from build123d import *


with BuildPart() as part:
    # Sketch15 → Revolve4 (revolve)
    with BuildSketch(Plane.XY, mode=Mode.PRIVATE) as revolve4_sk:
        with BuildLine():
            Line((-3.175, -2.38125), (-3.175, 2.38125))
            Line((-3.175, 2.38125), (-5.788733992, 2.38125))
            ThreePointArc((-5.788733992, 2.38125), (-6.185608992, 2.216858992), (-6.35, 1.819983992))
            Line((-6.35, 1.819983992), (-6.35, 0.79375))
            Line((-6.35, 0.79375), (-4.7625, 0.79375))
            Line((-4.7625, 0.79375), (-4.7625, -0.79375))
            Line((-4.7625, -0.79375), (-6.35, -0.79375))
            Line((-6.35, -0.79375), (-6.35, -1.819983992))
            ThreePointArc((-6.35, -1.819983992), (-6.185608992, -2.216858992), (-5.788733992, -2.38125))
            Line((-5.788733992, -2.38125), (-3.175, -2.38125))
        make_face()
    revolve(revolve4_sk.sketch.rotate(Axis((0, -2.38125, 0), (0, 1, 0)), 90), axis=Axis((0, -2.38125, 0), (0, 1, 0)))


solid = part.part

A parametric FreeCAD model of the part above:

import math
import FreeCAD as App
import Part
import Sketcher
from FreeCAD import Vector
Q = App.Units.Quantity

doc = App.newDocument("Part")
body = doc.addObject("PartDesign::Body", "Body")

# Sketch on XY plane
sketch1 = doc.addObject("Sketcher::SketchObject", "Sketch")
body.addObject(sketch1)
sketch1.AttachmentSupport = (doc.XY_Plane, [""])
sketch1.MapMode = "FlatFace"
sketch1.addGeometry(Part.LineSegment(Vector(-3.175, -2.38125, 0), Vector(-3.175, 2.38125, 0)), False)
sketch1.addGeometry(Part.LineSegment(Vector(-3.175, 2.38125, 0), Vector(-5.788734, 2.38125, 0)), False)
sketch1.addGeometry(Part.ArcOfCircle(Part.Circle(Vector(-5.788734, 1.819984, 0), Vector(0, 0, 1), 0.561266), math.radians(90), math.radians(180)), False)
sketch1.addGeometry(Part.LineSegment(Vector(-6.35, 1.819984, 0), Vector(-6.35, 0.79375, 0)), False)
sketch1.addGeometry(Part.LineSegment(Vector(-6.35, 0.79375, 0), Vector(-4.7625, 0.79375, 0)), False)
sketch1.addGeometry(Part.LineSegment(Vector(-4.7625, 0.79375, 0), Vector(-4.7625, -0.79375, 0)), False)
sketch1.addGeometry(Part.LineSegment(Vector(-4.7625, -0.79375, 0), Vector(-6.35, -0.79375, 0)), False)
sketch1.addGeometry(Part.LineSegment(Vector(-6.35, -0.79375, 0), Vector(-6.35, -1.819984, 0)), False)
sketch1.addGeometry(Part.ArcOfCircle(Part.Circle(Vector(-5.788734, -1.819984, 0), Vector(0, 0, 1), 0.561266), math.radians(-180), math.radians(-90)), False)
sketch1.addGeometry(Part.LineSegment(Vector(-5.788734, -2.38125, 0), Vector(-3.175, -2.38125, 0)), False)
sketch1.addConstraint(Sketcher.Constraint("Coincident", 0, 2, 1, 1))
sketch1.addConstraint(Sketcher.Constraint("Tangent", 1, 2, 2, 1))
sketch1.addConstraint(Sketcher.Constraint("Tangent", 2, 2, 3, 1))
sketch1.addConstraint(Sketcher.Constraint("Coincident", 3, 2, 4, 1))
sketch1.addConstraint(Sketcher.Constraint("Coincident", 4, 2, 5, 1))
sketch1.addConstraint(Sketcher.Constraint("Coincident", 5, 2, 6, 1))
sketch1.addConstraint(Sketcher.Constraint("Coincident", 6, 2, 7, 1))
sketch1.addConstraint(Sketcher.Constraint("Tangent", 7, 2, 8, 1))
sketch1.addConstraint(Sketcher.Constraint("Tangent", 8, 2, 9, 1))
sketch1.addConstraint(Sketcher.Constraint("Coincident", 9, 2, 0, 1))
sketch1.addConstraint(Sketcher.Constraint("Vertical", 0))
sketch1.addConstraint(Sketcher.Constraint("Horizontal", 1))
sketch1.addConstraint(Sketcher.Constraint("Vertical", 3))
sketch1.addConstraint(Sketcher.Constraint("Horizontal", 4))
sketch1.addConstraint(Sketcher.Constraint("Vertical", 5))
sketch1.addConstraint(Sketcher.Constraint("Horizontal", 6))
sketch1.addConstraint(Sketcher.Constraint("Vertical", 7))
sketch1.addConstraint(Sketcher.Constraint("Horizontal", 9))
sketch1.addConstraint(Sketcher.Constraint("Equal", 2, 8))
sketch1.addConstraint(Sketcher.Constraint("Symmetric", 2, 3, 8, 3, -1))
sketch1.addConstraint(Sketcher.Constraint("Equal", 6, 5))
sketch1.addConstraint(Sketcher.Constraint("Equal", 3, 7))
sketch1.addConstraint(Sketcher.Constraint("DistanceX", 4, 1, 4, 2, Q("0.0625 in")))
sketch1.addConstraint(Sketcher.Constraint("DistanceY", 0, 1, 0, 2, Q("0.1875 in")))
sketch1.addConstraint(Sketcher.Constraint("DistanceX", 2, 2, -1, 1, Q("0.25 in")))
sketch1.addConstraint(Sketcher.Constraint("DistanceX", 0, 2, -1, 1, Q("0.125 in")))
sketch1.addConstraint(Sketcher.Constraint("Radius", 2, 0.561266))
revolution = doc.addObject("PartDesign::Revolution", "Revolution")
body.addObject(revolution)
revolution.Profile = sketch1
revolution.ReferenceAxis = (sketch1, ["V_Axis"])
revolution.Angle = 360

doc.recompute()
